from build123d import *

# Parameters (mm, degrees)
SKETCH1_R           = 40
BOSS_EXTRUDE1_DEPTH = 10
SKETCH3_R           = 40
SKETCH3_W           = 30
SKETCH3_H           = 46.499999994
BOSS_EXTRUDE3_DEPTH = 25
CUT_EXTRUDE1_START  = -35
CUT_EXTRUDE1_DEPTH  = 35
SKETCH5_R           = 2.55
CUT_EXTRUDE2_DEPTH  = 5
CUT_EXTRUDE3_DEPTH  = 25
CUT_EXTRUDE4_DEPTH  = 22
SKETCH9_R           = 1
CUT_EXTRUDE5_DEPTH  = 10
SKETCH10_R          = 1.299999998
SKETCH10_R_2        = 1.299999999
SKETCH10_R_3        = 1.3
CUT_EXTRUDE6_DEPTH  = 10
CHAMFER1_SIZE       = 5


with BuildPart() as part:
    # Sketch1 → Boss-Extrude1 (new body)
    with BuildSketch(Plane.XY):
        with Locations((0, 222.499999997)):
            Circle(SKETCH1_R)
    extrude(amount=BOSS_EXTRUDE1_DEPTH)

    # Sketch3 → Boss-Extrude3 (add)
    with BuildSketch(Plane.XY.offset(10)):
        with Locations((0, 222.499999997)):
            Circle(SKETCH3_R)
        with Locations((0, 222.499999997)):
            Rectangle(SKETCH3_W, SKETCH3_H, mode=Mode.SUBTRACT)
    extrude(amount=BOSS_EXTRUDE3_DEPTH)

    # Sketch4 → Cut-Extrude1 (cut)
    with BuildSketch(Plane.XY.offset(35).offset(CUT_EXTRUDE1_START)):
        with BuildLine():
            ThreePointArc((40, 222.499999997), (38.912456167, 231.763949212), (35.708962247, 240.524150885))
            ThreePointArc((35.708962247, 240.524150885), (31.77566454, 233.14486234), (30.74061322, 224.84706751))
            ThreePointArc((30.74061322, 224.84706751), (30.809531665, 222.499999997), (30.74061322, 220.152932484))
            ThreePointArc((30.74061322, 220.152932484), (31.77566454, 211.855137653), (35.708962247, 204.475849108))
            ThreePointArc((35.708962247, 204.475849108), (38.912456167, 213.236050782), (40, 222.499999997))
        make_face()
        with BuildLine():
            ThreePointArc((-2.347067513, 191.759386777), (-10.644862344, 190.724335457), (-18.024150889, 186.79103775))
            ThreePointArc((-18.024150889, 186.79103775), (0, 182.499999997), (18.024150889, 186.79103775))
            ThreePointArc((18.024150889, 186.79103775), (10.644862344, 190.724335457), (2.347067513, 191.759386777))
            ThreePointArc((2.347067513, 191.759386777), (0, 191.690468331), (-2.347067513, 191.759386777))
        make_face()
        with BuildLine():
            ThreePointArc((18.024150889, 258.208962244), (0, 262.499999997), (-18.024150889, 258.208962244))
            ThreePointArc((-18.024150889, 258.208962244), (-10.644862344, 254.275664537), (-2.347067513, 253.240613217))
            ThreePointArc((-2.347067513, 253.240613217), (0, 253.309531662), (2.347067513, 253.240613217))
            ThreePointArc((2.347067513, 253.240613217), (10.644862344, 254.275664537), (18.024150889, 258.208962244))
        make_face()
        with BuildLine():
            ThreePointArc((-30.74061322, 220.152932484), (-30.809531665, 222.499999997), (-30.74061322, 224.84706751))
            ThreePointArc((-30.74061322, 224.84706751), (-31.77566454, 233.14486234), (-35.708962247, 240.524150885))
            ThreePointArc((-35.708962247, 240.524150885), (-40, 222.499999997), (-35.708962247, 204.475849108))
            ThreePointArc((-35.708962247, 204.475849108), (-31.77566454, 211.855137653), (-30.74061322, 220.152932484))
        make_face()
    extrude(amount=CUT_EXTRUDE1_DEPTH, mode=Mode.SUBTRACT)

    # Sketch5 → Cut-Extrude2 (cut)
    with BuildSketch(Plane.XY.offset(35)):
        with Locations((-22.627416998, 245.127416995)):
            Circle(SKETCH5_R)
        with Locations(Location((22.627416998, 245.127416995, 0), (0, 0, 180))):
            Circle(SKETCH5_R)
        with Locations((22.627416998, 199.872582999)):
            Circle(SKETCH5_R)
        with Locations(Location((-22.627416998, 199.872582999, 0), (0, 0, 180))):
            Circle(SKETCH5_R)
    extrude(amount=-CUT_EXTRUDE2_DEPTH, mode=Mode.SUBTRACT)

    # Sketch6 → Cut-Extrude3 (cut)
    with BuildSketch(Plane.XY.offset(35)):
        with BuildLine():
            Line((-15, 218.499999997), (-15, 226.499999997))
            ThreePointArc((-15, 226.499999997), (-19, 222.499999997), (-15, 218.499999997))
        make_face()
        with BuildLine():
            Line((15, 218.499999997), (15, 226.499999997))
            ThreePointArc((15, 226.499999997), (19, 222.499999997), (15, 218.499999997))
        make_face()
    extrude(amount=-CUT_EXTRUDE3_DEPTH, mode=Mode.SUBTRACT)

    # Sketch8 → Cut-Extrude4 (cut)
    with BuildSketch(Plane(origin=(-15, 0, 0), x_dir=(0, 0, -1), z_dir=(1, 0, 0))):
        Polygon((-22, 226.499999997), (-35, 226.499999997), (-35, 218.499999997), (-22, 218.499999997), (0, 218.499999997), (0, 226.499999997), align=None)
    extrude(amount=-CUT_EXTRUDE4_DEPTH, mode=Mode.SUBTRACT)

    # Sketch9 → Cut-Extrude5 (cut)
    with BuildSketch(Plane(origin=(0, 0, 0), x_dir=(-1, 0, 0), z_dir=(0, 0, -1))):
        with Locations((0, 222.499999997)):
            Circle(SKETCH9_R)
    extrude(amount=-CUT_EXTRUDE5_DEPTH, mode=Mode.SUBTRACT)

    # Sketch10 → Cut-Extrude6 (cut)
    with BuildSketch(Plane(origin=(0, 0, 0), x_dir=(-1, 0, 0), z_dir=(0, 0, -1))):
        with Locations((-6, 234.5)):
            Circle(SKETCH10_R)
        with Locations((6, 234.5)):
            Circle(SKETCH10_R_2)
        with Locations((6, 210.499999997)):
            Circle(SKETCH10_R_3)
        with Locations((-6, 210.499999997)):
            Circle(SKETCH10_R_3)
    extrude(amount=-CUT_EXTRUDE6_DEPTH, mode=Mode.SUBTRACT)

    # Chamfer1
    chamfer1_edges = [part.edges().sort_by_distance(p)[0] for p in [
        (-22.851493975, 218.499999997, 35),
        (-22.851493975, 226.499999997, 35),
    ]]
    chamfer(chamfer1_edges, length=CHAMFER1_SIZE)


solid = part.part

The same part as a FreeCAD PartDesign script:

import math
import FreeCAD as App
import Part
import Sketcher


def edges_at(feature, points):
    """Names of the edges that pass closest to the given points."""
    edges = feature.Shape.Edges
    near = lambda p: min(range(len(edges)), key=lambda i: edges[i].distToShape(Part.Vertex(*p))[0])
    return sorted({f"Edge{near(p) + 1}" for p in points})

doc = App.newDocument("Part")
body = doc.addObject("PartDesign::Body", "Body")

# Sketch on XY plane
sketch1 = body.newObject("Sketcher::SketchObject", "Sketch")
sketch1.AttachmentSupport = (doc.getObject("XY_Plane"), [""])
sketch1.MapMode = "FlatFace"
sketch1.addGeometry(Part.Circle(App.Vector(0, 222, 0), App.Vector(0, 0, 1), 40), False)
sketch1.addConstraint([
    Sketcher.Constraint("PointOnObject", 0, 3, -2),
    Sketcher.Constraint("Diameter", 0, 80.0),
    Sketcher.Constraint("DistanceY", -1, 1, 0, 3, 222.5),
])
pad1 = body.newObject("PartDesign::Pad", "Pad")
pad1.Profile = sketch1
pad1.Length = 10

# Sketch on XY plane
sketch2 = body.newObject("Sketcher::SketchObject", "Sketch001")
sketch2.AttachmentSupport = (doc.getObject("XY_Plane"), [""])
sketch2.MapMode = "FlatFace"
sketch2.AttachmentOffset = App.Placement(App.Vector(0, 0, 10), App.Rotation())
sketch2.addGeometry([
    Part.Circle(App.Vector(0, 222, 0), App.Vector(0, 0, 1), 40),  # 0
    Part.LineSegment(App.Vector(15, 199, 0), App.Vector(-15, 199, 0)),  # 1
    Part.LineSegment(App.Vector(-15, 199, 0), App.Vector(-15, 246, 0)),  # 2
    Part.LineSegment(App.Vector(-15, 246, 0), App.Vector(15, 246, 0)),  # 3
    Part.LineSegment(App.Vector(15, 246, 0), App.Vector(15, 199, 0)),  # 4
], False)
sketch2.addConstraint([
    Sketcher.Constraint("Coincident", 1, 2, 2, 1),
    Sketcher.Constraint("Coincident", 2, 2, 3, 1),
    Sketcher.Constraint("Coincident", 3, 2, 4, 1),
    Sketcher.Constraint("Coincident", 4, 2, 1, 1),
    Sketcher.Constraint("Horizontal", 1),
    Sketcher.Constraint("Vertical", 2),
    Sketcher.Constraint("Horizontal", 3),
    Sketcher.Constraint("Vertical", 4),
    Sketcher.Constraint("PointOnObject", 0, 3, -2),
    Sketcher.Constraint("Diameter", 0, 80.0),
    Sketcher.Constraint("DistanceX", 1, 2, 1, 1, 30.0),
    Sketcher.Constraint("DistanceY", 2, 1, 2, 2, 46.5),
    Sketcher.Constraint("DistanceX", 1, 2, -1, 1, 15.0),
    Sketcher.Constraint("DistanceY", -1, 1, 0, 3, 222.5),
    Sketcher.Constraint("DistanceY", -1, 1, 1, 2, 199.25),
])
pad2 = body.newObject("PartDesign::Pad", "Pad001")
pad2.Profile = sketch2
pad2.Length = 25

# Sketch on XY plane
sketch3 = body.newObject("Sketcher::SketchObject", "Sketch002")
sketch3.AttachmentSupport = (doc.getObject("XY_Plane"), [""])
sketch3.MapMode = "FlatFace"
sketch3.addGeometry([
    Part.ArcOfCircle(Part.Circle(App.Vector(0, 222.5, 0), App.Vector(0, 0, 1), 40), math.radians(0), math.radians(27)),  # 0
    Part.ArcOfCircle(Part.Circle(App.Vector(53.7, 226.2, 0), App.Vector(0, 0, 1), 23), math.radians(141), math.radians(183)),  # 1
    Part.ArcOfCircle(Part.Circle(App.Vector(-9.2, 222.5, 0), App.Vector(0, 0, 1), 40), math.radians(-3.36), math.radians(3.36)),  # 2
    Part.ArcOfCircle(Part.Circle(App.Vector(53.7, 218.8, 0), App.Vector(0, 0, 1), 23), math.radians(177), math.radians(219)),  # 3
    Part.ArcOfCircle(Part.Circle(App.Vector(0, 222.5, 0), App.Vector(0, 0, 1), 40), math.radians(-27), math.radians(0)),  # 4
    Part.ArcOfCircle(Part.Circle(App.Vector(-3.7, 168.8, 0), App.Vector(0, 0, 1), 23), math.radians(87), math.radians(129)),  # 5
    Part.ArcOfCircle(Part.Circle(App.Vector(0, 222.5, 0), App.Vector(0, 0, 1), 40), math.radians(-117), math.radians(-63)),  # 6
    Part.ArcOfCircle(Part.Circle(App.Vector(3.7, 168.8, 0), App.Vector(0, 0, 1), 23), math.radians(51), math.radians(93)),  # 7
    Part.ArcOfCircle(Part.Circle(App.Vector(0, 231.7, 0), App.Vector(0, 0, 1), 40), math.radians(-93.36), math.radians(-86.64)),  # 8
    Part.ArcOfCircle(Part.Circle(App.Vector(0, 222.5, 0), App.Vector(0, 0, 1), 40), math.radians(63), math.radians(117)),  # 9
    Part.ArcOfCircle(Part.Circle(App.Vector(-3.7, 276.2, 0), App.Vector(0, 0, 1), 23), math.radians(-129), math.radians(-87)),  # 10
    Part.ArcOfCircle(Part.Circle(App.Vector(0, 213.3, 0), App.Vector(0, 0, 1), 40), math.radians(86.64), math.radians(93.36)),  # 11
    Part.ArcOfCircle(Part.Circle(App.Vector(3.7, 276.2, 0), App.Vector(0, 0, 1), 23), math.radians(-93), math.radians(-51)),  # 12
    Part.ArcOfCircle(Part.Circle(App.Vector(9.2, 222.5, 0), App.Vector(0, 0, 1), 40), math.radians(176.64), math.radians(183.36)),  # 13
    Part.ArcOfCircle(Part.Circle(App.Vector(-53.7, 226.2, 0), App.Vector(0, 0, 1), 23), math.radians(-3), math.radians(39)),  # 14
    Part.ArcOfCircle(Part.Circle(App.Vector(0, 222.5, 0), App.Vector(0, 0, 1), 40), math.radians(153), math.radians(207)),  # 15
    Part.ArcOfCircle(Part.Circle(App.Vector(-53.7, 218.8, 0), App.Vector(0, 0, 1), 23), math.radians(-39), math.radians(3)),  # 16
], False)
sketch3.addConstraint([
    Sketcher.Constraint("Coincident", 0, 2, 1, 1),
    Sketcher.Constraint("Tangent", 1, 2, 2, 2),
    Sketcher.Constraint("Tangent", 2, 1, 3, 1),
    Sketcher.Constraint("Coincident", 3, 2, 4, 1),
    Sketcher.Constraint("Tangent", 4, 2, 0, 1),
    Sketcher.Constraint("Coincident", 5, 2, 6, 1),
    Sketcher.Constraint("Coincident", 6, 2, 7, 1),
    Sketcher.Constraint("Tangent", 7, 2, 8, 2),
    Sketcher.Constraint("Tangent", 8, 1, 5, 1),
    Sketcher.Constraint("Coincident", 9, 2, 10, 1),
    Sketcher.Constraint("Tangent", 10, 2, 11, 2),
    Sketcher.Constraint("Tangent", 11, 1, 12, 1),
    Sketcher.Constraint("Coincident", 12, 2, 9, 1),
    Sketcher.Constraint("Tangent", 13, 1, 14, 1),
    Sketcher.Constraint("Coincident", 14, 2, 15, 1),
    Sketcher.Constraint("Coincident", 15, 2, 16, 1),
    Sketcher.Constraint("Tangent", 16, 2, 13, 2),
    Sketcher.Constraint("Coincident", 6, 3, 0, 3),
    Sketcher.Constraint("Coincident", 9, 3, 0, 3),
    Sketcher.Constraint("Coincident", 15, 3, 0, 3),
    Sketcher.Constraint("Equal", 0, 2),
    Sketcher.Constraint("Equal", 1, 3),
    Sketcher.Constraint("Equal", 2, 4),
    Sketcher.Constraint("Equal", 3, 5),
    Sketcher.Constraint("Equal", 4, 6),
    Sketcher.Constraint("Equal", 5, 7),
    Sketcher.Constraint("Equal", 6, 8),
    Sketcher.Constraint("Equal", 8, 9),
    Sketcher.Constraint("Equal", 7, 10),
    Sketcher.Constraint("Equal", 9, 11),
    Sketcher.Constraint("Equal", 10, 12),
    Sketcher.Constraint("Equal", 11, 13),
    Sketcher.Constraint("Equal", 12, 14),
    Sketcher.Constraint("Equal", 13, 15),
    Sketcher.Constraint("Equal", 14, 16),
    Sketcher.Constraint("Symmetric", 5, 3, 7, 3, -2),
    Sketcher.Constraint("Symmetric", 10, 3, 12, 3, -2),
    Sketcher.Constraint("Symmetric", 2, 3, 13, 3, -2),
    Sketcher.Constraint("Symmetric", 0, 2, 14, 2, -2),
    Sketcher.Constraint("Horizontal", 0, 3, 2, 3),
    Sketcher.Constraint("Horizontal", 3, 3, 16, 3),
    Sketcher.Constraint("Horizontal", 15, 3, 4, 2),
    Sketcher.Constraint("Vertical", 1, 3, 3, 3),
    Sketcher.Constraint("Vertical", 5, 3, 10, 3),
    Sketcher.Constraint("Vertical", 5, 2, 9, 2),
    Sketcher.Constraint("Radius", 0, 40.0),
    Sketcher.Constraint("DistanceY", -1, 1, 0, 3, 222.5),
    Sketcher.Constraint("Radius", 1, 22.999209),
    Sketcher.Constraint("DistanceX", 2, 3, -1, 1, 9.190469),
    Sketcher.Constraint("DistanceY", -1, 1, 8, 3, 231.690468),
    Sketcher.Constraint("DistanceY", -1, 1, 0, 2, 240.524151),
    Sketcher.Constraint("DistanceX", 5, 2, -1, 1, 18.024151),
])
pocket1 = body.newObject("PartDesign::Pocket", "Pocket")
pocket1.Profile = sketch3
pocket1.Length = 35
pocket1.Reversed = True

# Sketch on XY plane
sketch4 = body.newObject("Sketcher::SketchObject", "Sketch003")
sketch4.AttachmentSupport = (doc.getObject("XY_Plane"), [""])
sketch4.MapMode = "FlatFace"
sketch4.AttachmentOffset = App.Placement(App.Vector(0, 0, 35), App.Rotation())
sketch4.addGeometry([
    Part.Circle(App.Vector(-22.6, 245.1, 0), App.Vector(0, 0, 1), 2.5),
    Part.Circle(App.Vector(22.6, 245.1, 0), App.Vector(0, 0, 1), 2.5),
    Part.Circle(App.Vector(22.6, 199.9, 0), App.Vector(0, 0, 1), 2.5),
    Part.Circle(App.Vector(-22.6, 199.9, 0), App.Vector(0, 0, 1), 2.5),
], False)
sketch4.addConstraint([
    Sketcher.Constraint("Equal", 0, 1),
    Sketcher.Constraint("Equal", 1, 2),
    Sketcher.Constraint("Equal", 2, 3),
    Sketcher.Constraint("Symmetric", 0, 3, 1, 3, -2),
    Sketcher.Constraint("Symmetric", 2, 3, 3, 3, -2),
    Sketcher.Constraint("Vertical", 1, 3, 2, 3),
    Sketcher.Constraint("Diameter", 0, 5.1),
    Sketcher.Constraint("DistanceX", 0, 3, -1, 1, 22.627417),
    Sketcher.Constraint("DistanceY", -1, 1, 0, 3, 245.127417),
    Sketcher.Constraint("DistanceY", -1, 1, 2, 3, 199.872583),
])
pocket2 = body.newObject("PartDesign::Pocket", "Pocket001")
pocket2.Profile = sketch4
pocket2.Length = 5

# Sketch on XY plane
sketch5 = body.newObject("Sketcher::SketchObject", "Sketch004")
sketch5.AttachmentSupport = (doc.getObject("XY_Plane"), [""])
sketch5.MapMode = "FlatFace"
sketch5.AttachmentOffset = App.Placement(App.Vector(0, 0, 35), App.Rotation())
sketch5.addGeometry([
    Part.LineSegment(App.Vector(-15, 218.5, 0), App.Vector(-15, 226.5, 0)),
    Part.ArcOfCircle(Part.Circle(App.Vector(-15, 222.5, 0), App.Vector(0, 0, 1), 4), math.radians(90), math.radians(270)),
    Part.LineSegment(App.Vector(15, 226.5, 0), App.Vector(15, 218.5, 0)),
    Part.ArcOfCircle(Part.Circle(App.Vector(15, 222.5, 0), App.Vector(0, 0, 1), 4), math.radians(-90), math.radians(90)),
], False)
sketch5.addConstraint([
    Sketcher.Constraint("Coincident", 0, 1, 1, 2),
    Sketcher.Constraint("Coincident", 1, 1, 0, 2),
    Sketcher.Constraint("Coincident", 2, 1, 3, 2),
    Sketcher.Constraint("Coincident", 3, 1, 2, 2),
    Sketcher.Constraint("Vertical", 0),
    Sketcher.Constraint("Vertical", 2),
    Sketcher.Constraint("Equal", 1, 3),
    Sketcher.Constraint("Symmetric", 1, 3, 3, 3, -2),
    Sketcher.Constraint("Vertical", 1, 3, 0, 1),
    Sketcher.Constraint("Vertical", 3, 3, 2, 1),
    Sketcher.Constraint("Radius", 1, 4.0),
    Sketcher.Constraint("DistanceX", 1, 3, -1, 1, 15.0),
    Sketcher.Constraint("DistanceY", -1, 1, 1, 3, 222.5),
])
pocket3 = body.newObject("PartDesign::Pocket", "Pocket002")
pocket3.Profile = sketch5
pocket3.Length = 25

# Sketch on YZ plane
sketch6 = body.newObject("Sketcher::SketchObject", "Sketch005")
sketch6.AttachmentSupport = (doc.getObject("YZ_Plane"), [""])
sketch6.MapMode = "FlatFace"
sketch6.AttachmentOffset = App.Placement(App.Vector(0, 0, -15), App.Rotation())
sketch6.addGeometry([
    Part.LineSegment(App.Vector(226, 35, 0), App.Vector(218, 35, 0)),
    Part.LineSegment(App.Vector(218, 35, 0), App.Vector(218, 0, 0)),
    Part.LineSegment(App.Vector(218, 0, 0), App.Vector(226, 0, 0)),
    Part.LineSegment(App.Vector(226, 0, 0), App.Vector(226, 35, 0)),
], False)
sketch6.addConstraint([
    Sketcher.Constraint("Coincident", 0, 2, 1, 1),
    Sketcher.Constraint("Coincident", 1, 2, 2, 1),
    Sketcher.Constraint("Coincident", 2, 2, 3, 1),
    Sketcher.Constraint("Coincident", 3, 2, 0, 1),
    Sketcher.Constraint("Horizontal", 0),
    Sketcher.Constraint("Vertical", 1),
    Sketcher.Constraint("Horizontal", 2),
    Sketcher.Constraint("Vertical", 3),
    Sketcher.Constraint("PointOnObject", 1, 2, -1),
    Sketcher.Constraint("DistanceX", 0, 2, 0, 1, 8.0),
    Sketcher.Constraint("DistanceY", 1, 2, 1, 1, 35.0),
    Sketcher.Constraint("DistanceX", -1, 1, 0, 2, 218.5),
])
pocket4 = body.newObject("PartDesign::Pocket", "Pocket003")
pocket4.Profile = sketch6
pocket4.Length = 22

# Sketch on XY plane
sketch7 = body.newObject("Sketcher::SketchObject", "Sketch006")
sketch7.AttachmentSupport = (doc.getObject("XY_Plane"), [""])
sketch7.MapMode = "FlatFace"
sketch7.addGeometry(Part.Circle(App.Vector(0, 222.5, 0), App.Vector(0, 0, 1), 1), False)
sketch7.addConstraint([
    Sketcher.Constraint("PointOnObject", 0, 3, -2),
    Sketcher.Constraint("Diameter", 0, 2.0),
    Sketcher.Constraint("DistanceY", -1, 1, 0, 3, 222.5),
])
pocket5 = body.newObject("PartDesign::Pocket", "Pocket004")
pocket5.Profile = sketch7
pocket5.Length = 10
pocket5.Reversed = True

# Sketch on XY plane
sketch8 = body.newObject("Sketcher::SketchObject", "Sketch007")
sketch8.AttachmentSupport = (doc.getObject("XY_Plane"), [""])
sketch8.MapMode = "FlatFace"
sketch8.addGeometry([
    Part.Circle(App.Vector(6, 234.5, 0), App.Vector(0, 0, 1), 1.3),
    Part.Circle(App.Vector(-6, 234.5, 0), App.Vector(0, 0, 1), 1.3),
    Part.Circle(App.Vector(-6, 210.5, 0), App.Vector(0, 0, 1), 1.3),
    Part.Circle(App.Vector(6, 210.5, 0), App.Vector(0, 0, 1), 1.3),
], False)
sketch8.addConstraint([
    Sketcher.Constraint("Equal", 0, 1),
    Sketcher.Constraint("Equal", 1, 2),
    Sketcher.Constraint("Equal", 2, 3),
    Sketcher.Constraint("Symmetric", 0, 3, 1, 3, -2),
    Sketcher.Constraint("Symmetric", 2, 3, 3, 3, -2),
    Sketcher.Constraint("Vertical", 1, 3, 2, 3),
    Sketcher.Constraint("Diameter", 0, 2.6),
    Sketcher.Constraint("DistanceX", -1, 1, 0, 3, 6.0),
    Sketcher.Constraint("DistanceY", 2, 3, 1, 3, 24.0),
    Sketcher.Constraint("DistanceY", -1, 1, 0, 3, 234.5),
])
pocket6 = body.newObject("PartDesign::Pocket", "Pocket005")
pocket6.Profile = sketch8
pocket6.Length = 10
pocket6.Reversed = True
doc.recompute()

chamfer = body.newObject("PartDesign::Chamfer", "Chamfer")
chamfer.Base = (pocket6, edges_at(pocket6, [(-22.851, 218.5, 35), (-22.851, 226.5, 35)]))
chamfer.Size = 5

doc.recompute()
